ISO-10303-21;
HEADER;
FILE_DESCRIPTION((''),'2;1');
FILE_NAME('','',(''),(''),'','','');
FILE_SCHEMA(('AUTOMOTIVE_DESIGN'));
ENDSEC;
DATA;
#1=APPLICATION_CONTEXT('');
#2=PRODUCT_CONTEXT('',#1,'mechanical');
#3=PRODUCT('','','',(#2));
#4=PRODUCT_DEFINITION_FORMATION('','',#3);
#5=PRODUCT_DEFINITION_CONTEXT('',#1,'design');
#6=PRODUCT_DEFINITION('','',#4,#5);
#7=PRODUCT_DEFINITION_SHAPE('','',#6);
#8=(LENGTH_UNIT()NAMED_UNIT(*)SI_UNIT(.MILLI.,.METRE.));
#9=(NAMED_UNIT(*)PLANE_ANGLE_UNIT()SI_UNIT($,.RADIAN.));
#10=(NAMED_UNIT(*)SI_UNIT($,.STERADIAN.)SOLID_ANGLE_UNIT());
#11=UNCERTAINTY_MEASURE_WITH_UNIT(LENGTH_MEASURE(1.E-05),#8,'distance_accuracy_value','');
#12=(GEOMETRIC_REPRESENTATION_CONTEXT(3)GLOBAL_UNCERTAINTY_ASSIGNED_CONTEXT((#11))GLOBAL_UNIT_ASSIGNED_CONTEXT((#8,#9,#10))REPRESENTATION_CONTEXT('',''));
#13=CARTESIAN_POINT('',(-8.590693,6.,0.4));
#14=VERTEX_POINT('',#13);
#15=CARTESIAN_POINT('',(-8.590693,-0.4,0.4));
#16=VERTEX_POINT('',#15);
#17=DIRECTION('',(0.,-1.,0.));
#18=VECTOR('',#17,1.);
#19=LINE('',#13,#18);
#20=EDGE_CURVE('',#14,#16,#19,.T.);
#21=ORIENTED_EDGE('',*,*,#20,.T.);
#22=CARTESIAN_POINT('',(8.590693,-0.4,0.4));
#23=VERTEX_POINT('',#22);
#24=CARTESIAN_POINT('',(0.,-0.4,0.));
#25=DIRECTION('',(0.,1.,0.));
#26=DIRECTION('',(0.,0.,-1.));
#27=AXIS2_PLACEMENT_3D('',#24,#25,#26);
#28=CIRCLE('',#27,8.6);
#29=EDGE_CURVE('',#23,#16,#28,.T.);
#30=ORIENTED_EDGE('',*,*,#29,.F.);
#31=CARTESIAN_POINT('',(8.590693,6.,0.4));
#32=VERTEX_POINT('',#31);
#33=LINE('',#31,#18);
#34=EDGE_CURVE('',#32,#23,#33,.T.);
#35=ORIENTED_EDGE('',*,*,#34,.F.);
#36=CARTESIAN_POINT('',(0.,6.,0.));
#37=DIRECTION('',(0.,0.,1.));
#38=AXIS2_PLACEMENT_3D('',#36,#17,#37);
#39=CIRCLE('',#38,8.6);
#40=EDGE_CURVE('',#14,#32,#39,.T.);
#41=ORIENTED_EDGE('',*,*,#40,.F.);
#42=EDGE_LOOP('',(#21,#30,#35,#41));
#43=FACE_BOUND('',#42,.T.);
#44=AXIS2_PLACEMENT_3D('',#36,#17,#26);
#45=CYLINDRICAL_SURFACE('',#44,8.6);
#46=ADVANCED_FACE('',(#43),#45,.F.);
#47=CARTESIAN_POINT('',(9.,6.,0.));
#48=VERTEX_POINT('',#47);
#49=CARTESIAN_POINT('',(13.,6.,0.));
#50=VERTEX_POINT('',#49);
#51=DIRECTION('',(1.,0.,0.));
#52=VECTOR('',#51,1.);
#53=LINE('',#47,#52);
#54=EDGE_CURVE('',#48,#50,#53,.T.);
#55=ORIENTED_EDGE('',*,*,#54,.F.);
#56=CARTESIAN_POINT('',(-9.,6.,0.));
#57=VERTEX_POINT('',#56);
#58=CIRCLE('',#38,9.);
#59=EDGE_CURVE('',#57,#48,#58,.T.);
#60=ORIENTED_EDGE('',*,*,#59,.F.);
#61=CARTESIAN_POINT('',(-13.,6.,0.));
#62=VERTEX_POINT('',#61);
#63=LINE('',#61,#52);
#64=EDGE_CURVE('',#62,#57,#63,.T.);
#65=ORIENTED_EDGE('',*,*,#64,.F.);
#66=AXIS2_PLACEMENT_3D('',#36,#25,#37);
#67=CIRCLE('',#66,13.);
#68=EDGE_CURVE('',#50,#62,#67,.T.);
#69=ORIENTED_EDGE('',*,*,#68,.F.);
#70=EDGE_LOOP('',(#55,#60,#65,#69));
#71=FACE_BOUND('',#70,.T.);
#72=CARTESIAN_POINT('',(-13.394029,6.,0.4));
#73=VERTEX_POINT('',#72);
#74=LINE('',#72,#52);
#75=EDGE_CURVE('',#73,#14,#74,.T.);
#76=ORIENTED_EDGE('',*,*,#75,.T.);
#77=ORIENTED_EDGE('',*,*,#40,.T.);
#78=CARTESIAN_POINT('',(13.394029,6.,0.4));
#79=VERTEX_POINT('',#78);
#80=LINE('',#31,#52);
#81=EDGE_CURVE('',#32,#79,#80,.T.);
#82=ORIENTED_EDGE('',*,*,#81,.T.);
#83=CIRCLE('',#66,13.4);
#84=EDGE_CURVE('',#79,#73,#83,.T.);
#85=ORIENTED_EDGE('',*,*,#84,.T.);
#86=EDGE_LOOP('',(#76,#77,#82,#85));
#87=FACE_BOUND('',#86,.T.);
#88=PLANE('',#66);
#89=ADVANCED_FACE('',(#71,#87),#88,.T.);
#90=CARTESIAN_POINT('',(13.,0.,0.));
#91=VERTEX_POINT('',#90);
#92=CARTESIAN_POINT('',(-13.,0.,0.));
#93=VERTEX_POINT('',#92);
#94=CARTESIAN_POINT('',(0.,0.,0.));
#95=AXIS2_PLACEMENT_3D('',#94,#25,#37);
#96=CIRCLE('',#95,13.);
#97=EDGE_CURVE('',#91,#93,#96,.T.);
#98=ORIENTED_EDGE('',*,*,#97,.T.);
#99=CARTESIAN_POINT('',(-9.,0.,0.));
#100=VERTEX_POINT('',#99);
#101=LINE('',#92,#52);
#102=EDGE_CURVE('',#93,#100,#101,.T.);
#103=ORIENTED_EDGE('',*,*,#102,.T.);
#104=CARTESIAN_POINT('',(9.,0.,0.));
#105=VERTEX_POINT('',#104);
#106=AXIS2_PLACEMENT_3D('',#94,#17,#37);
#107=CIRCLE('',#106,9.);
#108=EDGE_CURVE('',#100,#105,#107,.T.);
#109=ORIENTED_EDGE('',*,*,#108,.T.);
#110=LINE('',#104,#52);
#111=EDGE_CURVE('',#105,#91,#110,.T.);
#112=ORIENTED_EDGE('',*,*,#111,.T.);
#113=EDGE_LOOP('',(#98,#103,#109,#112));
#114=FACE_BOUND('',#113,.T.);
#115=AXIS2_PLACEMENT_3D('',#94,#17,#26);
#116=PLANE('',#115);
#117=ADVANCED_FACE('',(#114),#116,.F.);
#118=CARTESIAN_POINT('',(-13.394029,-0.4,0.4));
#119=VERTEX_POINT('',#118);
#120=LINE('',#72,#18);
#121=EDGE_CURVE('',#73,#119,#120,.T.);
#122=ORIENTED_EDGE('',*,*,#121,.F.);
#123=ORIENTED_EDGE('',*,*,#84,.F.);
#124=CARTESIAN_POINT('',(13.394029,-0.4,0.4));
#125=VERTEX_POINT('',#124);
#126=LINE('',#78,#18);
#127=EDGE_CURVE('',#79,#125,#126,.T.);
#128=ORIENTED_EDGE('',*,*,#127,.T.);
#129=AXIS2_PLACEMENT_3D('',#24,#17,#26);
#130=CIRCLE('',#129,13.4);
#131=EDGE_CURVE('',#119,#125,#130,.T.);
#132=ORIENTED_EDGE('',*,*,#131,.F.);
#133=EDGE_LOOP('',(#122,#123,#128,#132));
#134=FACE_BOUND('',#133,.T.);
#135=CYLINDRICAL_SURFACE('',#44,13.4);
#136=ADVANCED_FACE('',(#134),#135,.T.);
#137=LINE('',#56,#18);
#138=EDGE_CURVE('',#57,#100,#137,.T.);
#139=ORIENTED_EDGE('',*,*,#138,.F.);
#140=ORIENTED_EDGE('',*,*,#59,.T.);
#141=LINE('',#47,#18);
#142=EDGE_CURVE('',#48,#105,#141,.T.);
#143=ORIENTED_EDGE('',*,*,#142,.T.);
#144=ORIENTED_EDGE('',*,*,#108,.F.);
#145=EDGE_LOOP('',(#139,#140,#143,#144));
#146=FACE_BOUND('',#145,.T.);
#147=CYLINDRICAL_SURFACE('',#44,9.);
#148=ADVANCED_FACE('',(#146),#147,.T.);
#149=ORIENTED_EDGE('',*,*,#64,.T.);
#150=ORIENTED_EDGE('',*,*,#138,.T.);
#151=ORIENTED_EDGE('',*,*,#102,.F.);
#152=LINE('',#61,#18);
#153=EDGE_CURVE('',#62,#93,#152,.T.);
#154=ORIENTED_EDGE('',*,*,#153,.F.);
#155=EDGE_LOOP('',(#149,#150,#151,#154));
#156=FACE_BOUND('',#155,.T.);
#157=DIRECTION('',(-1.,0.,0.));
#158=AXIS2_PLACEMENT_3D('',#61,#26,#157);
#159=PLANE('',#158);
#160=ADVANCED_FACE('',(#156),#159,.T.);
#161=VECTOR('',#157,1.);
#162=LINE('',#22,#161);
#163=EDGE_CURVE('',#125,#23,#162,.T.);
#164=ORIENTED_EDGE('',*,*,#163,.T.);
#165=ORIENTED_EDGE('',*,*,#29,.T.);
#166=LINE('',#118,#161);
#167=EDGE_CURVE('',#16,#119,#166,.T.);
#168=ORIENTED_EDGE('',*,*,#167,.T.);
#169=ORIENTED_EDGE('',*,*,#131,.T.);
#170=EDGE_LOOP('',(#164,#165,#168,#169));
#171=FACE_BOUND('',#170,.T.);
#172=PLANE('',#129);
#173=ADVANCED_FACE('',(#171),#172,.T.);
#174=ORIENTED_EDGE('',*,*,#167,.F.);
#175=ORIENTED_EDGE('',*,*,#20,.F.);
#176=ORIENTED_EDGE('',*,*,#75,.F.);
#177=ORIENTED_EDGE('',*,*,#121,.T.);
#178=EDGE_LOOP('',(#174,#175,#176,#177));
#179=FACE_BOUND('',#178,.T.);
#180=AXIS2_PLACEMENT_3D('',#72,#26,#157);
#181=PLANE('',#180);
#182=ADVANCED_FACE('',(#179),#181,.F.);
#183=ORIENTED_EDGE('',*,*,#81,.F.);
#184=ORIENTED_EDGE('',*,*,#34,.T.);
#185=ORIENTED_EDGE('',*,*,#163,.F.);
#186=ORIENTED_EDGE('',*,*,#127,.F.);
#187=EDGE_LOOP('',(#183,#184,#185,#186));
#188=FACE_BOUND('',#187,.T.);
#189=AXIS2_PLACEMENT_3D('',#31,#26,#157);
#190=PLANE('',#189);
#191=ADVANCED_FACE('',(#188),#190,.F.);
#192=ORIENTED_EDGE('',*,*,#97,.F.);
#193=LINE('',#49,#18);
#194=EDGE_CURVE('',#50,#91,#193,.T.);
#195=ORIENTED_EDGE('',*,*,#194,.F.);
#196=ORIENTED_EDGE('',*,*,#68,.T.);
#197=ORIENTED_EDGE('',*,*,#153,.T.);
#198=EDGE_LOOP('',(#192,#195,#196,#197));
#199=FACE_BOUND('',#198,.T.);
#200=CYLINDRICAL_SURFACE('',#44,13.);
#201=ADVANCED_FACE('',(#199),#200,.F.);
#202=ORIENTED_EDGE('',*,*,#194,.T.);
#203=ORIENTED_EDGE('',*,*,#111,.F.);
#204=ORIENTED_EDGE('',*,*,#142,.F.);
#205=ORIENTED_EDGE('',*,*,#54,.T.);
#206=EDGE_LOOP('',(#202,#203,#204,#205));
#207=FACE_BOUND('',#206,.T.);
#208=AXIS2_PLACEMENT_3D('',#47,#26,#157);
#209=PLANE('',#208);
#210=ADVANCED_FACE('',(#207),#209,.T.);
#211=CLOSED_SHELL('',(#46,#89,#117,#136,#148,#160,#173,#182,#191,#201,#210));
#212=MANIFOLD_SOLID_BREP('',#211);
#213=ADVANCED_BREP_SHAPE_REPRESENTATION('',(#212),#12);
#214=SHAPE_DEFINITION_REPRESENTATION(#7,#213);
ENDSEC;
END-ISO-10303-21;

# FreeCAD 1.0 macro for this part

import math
import FreeCAD as App
import Part
import Sketcher

doc = App.newDocument("Part")
body = doc.addObject("PartDesign::Body", "Body")

# Sketch on XZ plane
sketch1 = body.newObject("Sketcher::SketchObject", "Sketch")
sketch1.AttachmentSupport = (doc.getObject("XZ_Plane"), [""])
sketch1.MapMode = "FlatFace"
sketch1.addGeometry([
    Part.LineSegment(App.Vector(8.6, 0.4, 0), App.Vector(13.4, 0.4, 0)),  # 0
    Part.ArcOfCircle(Part.Circle(App.Vector(0, 0, 0), App.Vector(0, 0, 1), 13.4), math.radians(178), math.radians(362)),  # 1
    Part.LineSegment(App.Vector(-13.4, 0.4, 0), App.Vector(-8.6, 0.4, 0)),  # 2
    Part.ArcOfCircle(Part.Circle(App.Vector(0, 0, 0), App.Vector(0, 0, 1), 8.6), math.radians(177), math.radians(363)),  # 3
    Part.LineSegment(App.Vector(13, 0, 0), App.Vector(9, 0, 0)),  # 4
    Part.ArcOfCircle(Part.Circle(App.Vector(0, 0, 0), App.Vector(0, 0, 1), 9), math.radians(180), math.radians(360)),  # 5
    Part.LineSegment(App.Vector(-9, 0, 0), App.Vector(-13, 0, 0)),  # 6
    Part.ArcOfCircle(Part.Circle(App.Vector(0, 0, 0), App.Vector(0, 0, 1), 13), math.radians(180), math.radians(360)),  # 7
], False)
sketch1.addConstraint([
    Sketcher.Constraint("Coincident", 0, 2, 1, 2),
    Sketcher.Constraint("Coincident", 1, 1, 2, 1),
    Sketcher.Constraint("Coincident", 2, 2, 3, 1),
    Sketcher.Constraint("Coincident", 3, 2, 0, 1),
    Sketcher.Constraint("Coincident", 4, 2, 5, 2),
    Sketcher.Constraint("Coincident", 5, 1, 6, 1),
    Sketcher.Constraint("Coincident", 6, 2, 7, 1),
    Sketcher.Constraint("Coincident", 7, 2, 4, 1),
    Sketcher.Constraint("Horizontal", 0),
    Sketcher.Constraint("Horizontal", 2),
    Sketcher.Constraint("Horizontal", 4),
    Sketcher.Constraint("Horizontal", 6),
    Sketcher.Constraint("Coincident", 1, 3, -1, 1),
    Sketcher.Constraint("Coincident", 3, 3, -1, 1),
    Sketcher.Constraint("Coincident", 5, 3, -1, 1),
    Sketcher.Constraint("Coincident", 7, 3, -1, 1),
    Sketcher.Constraint("PointOnObject", 4, 2, -1),
    Sketcher.Constraint("PointOnObject", 5, 1, -1),
    Sketcher.Constraint("Horizontal", 0, 2, 1, 1),
    Sketcher.Constraint("Radius", 5, 9.0),
    Sketcher.Constraint("Radius", 7, 13.0),
    Sketcher.Constraint("Radius", 1, 13.4),
    Sketcher.Constraint("Radius", 3, 8.6),
    Sketcher.Constraint("DistanceY", -1, 1, 0, 2, 0.4),
])
pad1 = body.newObject("PartDesign::Pad", "Pad")
pad1.Profile = sketch1
pad1.Length = 6
pad1.Reversed = True

# Sketch on XZ plane
sketch2 = body.newObject("Sketcher::SketchObject", "Sketch001")
sketch2.AttachmentSupport = (doc.getObject("XZ_Plane"), [""])
sketch2.MapMode = "FlatFace"
sketch2.addGeometry([
    Part.LineSegment(App.Vector(13.4, 0.4, 0), App.Vector(8.6, 0.4, 0)),
    Part.ArcOfCircle(Part.Circle(App.Vector(0, 0, 0), App.Vector(0, 0, 1), 8.6), math.radians(177), math.radians(363)),
    Part.LineSegment(App.Vector(-8.6, 0.4, 0), App.Vector(-13.4, 0.4, 0)),
    Part.ArcOfCircle(Part.Circle(App.Vector(0, 0, 0), App.Vector(0, 0, 1), 13.4), math.radians(178), math.radians(362)),
], False)
sketch2.addConstraint([
    Sketcher.Constraint("Coincident", 0, 2, 1, 2),
    Sketcher.Constraint("Coincident", 1, 1, 2, 1),
    Sketcher.Constraint("Coincident", 2, 2, 3, 1),
    Sketcher.Constraint("Coincident", 3, 2, 0, 1),
    Sketcher.Constraint("Horizontal", 0),
    Sketcher.Constraint("Horizontal", 2),
    Sketcher.Constraint("Coincident", 1, 3, -1, 1),
    Sketcher.Constraint("Coincident", 3, 3, -1, 1),
    Sketcher.Constraint("Horizontal", 0, 2, 1, 1),
    Sketcher.Constraint("Radius", 1, 8.6),
    Sketcher.Constraint("Radius", 3, 13.4),
    Sketcher.Constraint("DistanceY", -1, 1, 0, 2, 0.4),
])
pad2 = body.newObject("PartDesign::Pad", "Pad001")
pad2.Profile = sketch2
pad2.Length = 0.4

doc.recompute()
